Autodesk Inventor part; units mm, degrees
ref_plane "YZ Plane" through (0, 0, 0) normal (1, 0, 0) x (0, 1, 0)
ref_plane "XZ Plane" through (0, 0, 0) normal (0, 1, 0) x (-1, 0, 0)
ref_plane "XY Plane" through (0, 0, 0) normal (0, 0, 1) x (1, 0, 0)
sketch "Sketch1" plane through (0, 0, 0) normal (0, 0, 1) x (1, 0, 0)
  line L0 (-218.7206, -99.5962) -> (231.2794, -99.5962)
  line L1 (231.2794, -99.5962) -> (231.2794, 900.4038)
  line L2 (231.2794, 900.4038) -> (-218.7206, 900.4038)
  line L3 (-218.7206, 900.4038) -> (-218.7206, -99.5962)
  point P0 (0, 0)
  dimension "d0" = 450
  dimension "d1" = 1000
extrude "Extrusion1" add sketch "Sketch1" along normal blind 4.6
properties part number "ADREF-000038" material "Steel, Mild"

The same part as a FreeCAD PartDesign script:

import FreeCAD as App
import Part
import Sketcher

V = App.Vector
Q = App.Units.Quantity

doc = App.newDocument("Part")
body = doc.addObject("PartDesign::Body", "Body")

# Sketch on XY plane
sketch1 = doc.addObject("Sketcher::SketchObject", "Sketch")
body.addObject(sketch1)
sketch1.AttachmentSupport = (doc.XY_Plane, [""])
sketch1.MapMode = "FlatFace"
sketch1.addGeometry(Part.LineSegment(V(-218.7206, 900.4038, 0), V(-218.7206, -99.5962, 0)), False)
sketch1.addGeometry(Part.LineSegment(V(-218.7206, -99.5962, 0), V(231.2794, -99.5962, 0)), False)
sketch1.addGeometry(Part.LineSegment(V(231.2794, -99.5962, 0), V(231.2794, 900.4038, 0)), False)
sketch1.addGeometry(Part.LineSegment(V(231.2794, 900.4038, 0), V(-218.7206, 900.4038, 0)), False)
sketch1.addConstraint(Sketcher.Constraint("Coincident", 0, 2, 1, 1))
sketch1.addConstraint(Sketcher.Constraint("Coincident", 1, 2, 2, 1))
sketch1.addConstraint(Sketcher.Constraint("Coincident", 2, 2, 3, 1))
sketch1.addConstraint(Sketcher.Constraint("Coincident", 3, 2, 0, 1))
sketch1.addConstraint(Sketcher.Constraint("Vertical", 0))
sketch1.addConstraint(Sketcher.Constraint("Horizontal", 1))
sketch1.addConstraint(Sketcher.Constraint("Vertical", 2))
sketch1.addConstraint(Sketcher.Constraint("Horizontal", 3))
sketch1.addConstraint(Sketcher.Constraint("DistanceX", 1, 1, 1, 2, Q("450 mm")))
sketch1.addConstraint(Sketcher.Constraint("DistanceY", 0, 2, 0, 1, Q("1000 mm")))
sketch1.addConstraint(Sketcher.Constraint("DistanceX", 0, 2, -1, 1, Q("218.7206 mm")))
sketch1.addConstraint(Sketcher.Constraint("DistanceY", 0, 2, -1, 1, Q("99.5962 mm")))
pad1 = doc.addObject("PartDesign::Pad", "Pad")
body.addObject(pad1)
pad1.Profile = sketch1
pad1.Length = 4.6

doc.recompute()
